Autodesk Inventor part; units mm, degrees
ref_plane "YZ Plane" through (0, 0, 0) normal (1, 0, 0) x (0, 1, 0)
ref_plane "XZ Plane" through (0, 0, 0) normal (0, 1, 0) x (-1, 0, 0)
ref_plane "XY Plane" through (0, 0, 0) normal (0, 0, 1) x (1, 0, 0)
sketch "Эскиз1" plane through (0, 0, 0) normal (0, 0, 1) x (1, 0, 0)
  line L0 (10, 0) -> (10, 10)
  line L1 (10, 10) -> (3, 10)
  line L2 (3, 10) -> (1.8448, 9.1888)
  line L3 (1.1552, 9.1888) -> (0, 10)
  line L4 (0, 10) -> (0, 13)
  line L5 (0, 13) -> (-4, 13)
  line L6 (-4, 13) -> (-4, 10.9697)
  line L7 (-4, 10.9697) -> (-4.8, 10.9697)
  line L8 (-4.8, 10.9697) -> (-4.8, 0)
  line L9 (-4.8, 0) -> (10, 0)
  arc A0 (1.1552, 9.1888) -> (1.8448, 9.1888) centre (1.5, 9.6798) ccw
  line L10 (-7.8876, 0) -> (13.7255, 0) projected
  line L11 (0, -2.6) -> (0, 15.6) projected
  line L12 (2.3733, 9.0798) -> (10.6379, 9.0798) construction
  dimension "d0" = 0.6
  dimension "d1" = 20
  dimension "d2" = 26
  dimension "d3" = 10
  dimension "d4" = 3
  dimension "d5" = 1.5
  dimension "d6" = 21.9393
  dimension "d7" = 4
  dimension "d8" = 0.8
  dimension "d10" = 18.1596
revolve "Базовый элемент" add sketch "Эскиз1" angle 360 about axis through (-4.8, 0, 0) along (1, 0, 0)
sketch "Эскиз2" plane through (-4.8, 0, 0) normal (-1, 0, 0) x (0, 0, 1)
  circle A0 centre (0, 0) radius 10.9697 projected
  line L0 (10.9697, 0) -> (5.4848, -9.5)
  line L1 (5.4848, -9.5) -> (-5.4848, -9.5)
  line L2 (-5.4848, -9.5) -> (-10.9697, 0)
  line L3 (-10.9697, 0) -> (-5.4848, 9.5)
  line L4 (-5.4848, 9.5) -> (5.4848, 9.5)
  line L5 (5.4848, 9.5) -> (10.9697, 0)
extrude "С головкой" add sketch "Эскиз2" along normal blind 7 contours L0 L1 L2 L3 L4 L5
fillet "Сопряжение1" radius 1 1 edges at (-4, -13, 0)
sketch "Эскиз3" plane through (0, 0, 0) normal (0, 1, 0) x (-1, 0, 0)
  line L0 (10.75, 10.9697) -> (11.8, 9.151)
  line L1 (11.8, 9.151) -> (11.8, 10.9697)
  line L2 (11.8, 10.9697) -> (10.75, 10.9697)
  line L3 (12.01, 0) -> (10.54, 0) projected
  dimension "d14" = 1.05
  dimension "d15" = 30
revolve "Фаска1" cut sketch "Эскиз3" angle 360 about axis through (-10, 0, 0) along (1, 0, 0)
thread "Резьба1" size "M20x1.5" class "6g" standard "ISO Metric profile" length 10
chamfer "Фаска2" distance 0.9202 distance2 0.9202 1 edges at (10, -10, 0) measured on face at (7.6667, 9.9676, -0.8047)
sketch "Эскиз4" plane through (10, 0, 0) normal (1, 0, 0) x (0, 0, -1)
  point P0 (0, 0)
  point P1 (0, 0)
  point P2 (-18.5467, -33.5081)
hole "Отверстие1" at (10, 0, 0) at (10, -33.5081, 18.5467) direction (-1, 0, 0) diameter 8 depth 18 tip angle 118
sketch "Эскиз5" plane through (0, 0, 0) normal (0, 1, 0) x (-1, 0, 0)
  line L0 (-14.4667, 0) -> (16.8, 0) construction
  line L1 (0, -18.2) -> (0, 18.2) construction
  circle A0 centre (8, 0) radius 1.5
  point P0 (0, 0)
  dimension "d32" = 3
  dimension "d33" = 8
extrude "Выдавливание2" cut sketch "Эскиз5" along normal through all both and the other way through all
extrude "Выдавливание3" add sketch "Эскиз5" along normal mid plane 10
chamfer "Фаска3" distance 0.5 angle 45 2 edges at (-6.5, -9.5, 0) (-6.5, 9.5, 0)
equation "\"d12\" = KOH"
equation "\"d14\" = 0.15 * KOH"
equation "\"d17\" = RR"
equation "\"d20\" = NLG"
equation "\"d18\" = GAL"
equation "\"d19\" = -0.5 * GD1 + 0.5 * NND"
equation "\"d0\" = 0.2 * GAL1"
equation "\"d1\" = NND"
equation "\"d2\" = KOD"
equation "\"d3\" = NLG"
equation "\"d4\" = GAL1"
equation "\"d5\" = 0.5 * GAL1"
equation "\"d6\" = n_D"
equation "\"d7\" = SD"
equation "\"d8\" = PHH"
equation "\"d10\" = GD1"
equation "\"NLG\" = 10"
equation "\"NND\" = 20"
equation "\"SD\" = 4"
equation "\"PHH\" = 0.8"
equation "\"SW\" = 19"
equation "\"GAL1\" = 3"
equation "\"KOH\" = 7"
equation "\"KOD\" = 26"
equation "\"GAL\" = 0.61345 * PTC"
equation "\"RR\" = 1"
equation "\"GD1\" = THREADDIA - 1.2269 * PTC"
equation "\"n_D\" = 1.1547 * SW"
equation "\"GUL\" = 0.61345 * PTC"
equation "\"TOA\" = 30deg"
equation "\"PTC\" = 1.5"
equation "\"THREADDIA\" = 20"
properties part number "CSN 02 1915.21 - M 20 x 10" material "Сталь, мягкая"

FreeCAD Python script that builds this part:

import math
import FreeCAD as App
import Part
import Sketcher
Q = App.Units.Quantity


def edges_at(feature, points):
    """Names of the edges that pass closest to the given points."""
    edges = feature.Shape.Edges
    near = lambda p: min(range(len(edges)), key=lambda i: edges[i].distToShape(Part.Vertex(*p))[0])
    return sorted({f"Edge{near(p) + 1}" for p in points})

doc = App.newDocument("Part")
body = doc.addObject("PartDesign::Body", "Body")

# Sketch on XY plane
sketch1 = body.newObject("Sketcher::SketchObject", "Sketch")
sketch1.AttachmentSupport = (doc.getObject("XY_Plane"), [""])
sketch1.MapMode = "FlatFace"
sketch1.addGeometry([
    Part.LineSegment(App.Vector(10, 0, 0), App.Vector(10, 10, 0)),  # 0
    Part.LineSegment(App.Vector(10, 10, 0), App.Vector(3, 10, 0)),  # 1
    Part.LineSegment(App.Vector(3, 10, 0), App.Vector(1.8448, 9.1888, 0)),  # 2
    Part.ArcOfCircle(Part.Circle(App.Vector(1.5, 9.6798, 0), App.Vector(0, 0, 1), 0.599973), math.radians(-125.078078), math.radians(-54.921922)),  # 3
    Part.LineSegment(App.Vector(1.1552, 9.1888, 0), App.Vector(0, 10, 0)),  # 4
    Part.LineSegment(App.Vector(0, 10, 0), App.Vector(0, 13, 0)),  # 5
    Part.LineSegment(App.Vector(0, 13, 0), App.Vector(-4, 13, 0)),  # 6
    Part.LineSegment(App.Vector(-4, 13, 0), App.Vector(-4, 10.9697, 0)),  # 7
    Part.LineSegment(App.Vector(-4, 10.9697, 0), App.Vector(-4.8, 10.9697, 0)),  # 8
    Part.LineSegment(App.Vector(-4.8, 10.9697, 0), App.Vector(-4.8, 0, 0)),  # 9
    Part.LineSegment(App.Vector(-4.8, 0, 0), App.Vector(10, 0, 0)),  # 10
], False)
sketch1.addConstraint([
    Sketcher.Constraint("Coincident", 0, 2, 1, 1),
    Sketcher.Constraint("Coincident", 1, 2, 2, 1),
    Sketcher.Constraint("Tangent", 2, 2, 3, 2),
    Sketcher.Constraint("Tangent", 3, 1, 4, 1),
    Sketcher.Constraint("Coincident", 4, 2, 5, 1),
    Sketcher.Constraint("Coincident", 5, 2, 6, 1),
    Sketcher.Constraint("Coincident", 6, 2, 7, 1),
    Sketcher.Constraint("Coincident", 7, 2, 8, 1),
    Sketcher.Constraint("Coincident", 8, 2, 9, 1),
    Sketcher.Constraint("Coincident", 9, 2, 10, 1),
    Sketcher.Constraint("Coincident", 10, 2, 0, 1),
    Sketcher.Constraint("Vertical", 0),
    Sketcher.Constraint("Horizontal", 1),
    Sketcher.Constraint("Vertical", 5),
    Sketcher.Constraint("Horizontal", 6),
    Sketcher.Constraint("Vertical", 7),
    Sketcher.Constraint("Horizontal", 8),
    Sketcher.Constraint("Vertical", 9),
    Sketcher.Constraint("Horizontal", 10),
    Sketcher.Constraint("PointOnObject", 4, 2, -2),
    Sketcher.Constraint("PointOnObject", 9, 2, -1),
    Sketcher.Constraint("Horizontal", 2, 2, 3, 1),
    Sketcher.Constraint("Horizontal", 1, 2, 4, 2),
    Sketcher.Constraint("Radius", 3, 0.6),
    Sketcher.Constraint("DistanceX", 6, 2, 6, 1, 4.0),
    Sketcher.Constraint("DistanceY", 0, 1, 0, 2, 10.0),
    Sketcher.Constraint("DistanceY", 5, 1, 5, 2, 3.0),
    Sketcher.Constraint("DistanceX", 8, 2, 8, 1, 0.8),
    Sketcher.Constraint("DistanceX", -1, 1, 0, 2, 10.0),
    Sketcher.Constraint("DistanceX", -1, 1, 1, 2, 3.0),
    Sketcher.Constraint("DistanceY", 3, 3, 7, 2, 1.29),
    Sketcher.Constraint("DistanceY", 7, 2, 7, 1, 2.0303),
])
revolution = body.newObject("PartDesign::Revolution", "Revolution")
revolution.Profile = sketch1
revolution.ReferenceAxis = (sketch1, ["H_Axis"])
revolution.Angle = 360

# Sketch on YZ plane
sketch2 = body.newObject("Sketcher::SketchObject", "Sketch001")
sketch2.AttachmentSupport = (doc.getObject("YZ_Plane"), [""])
sketch2.MapMode = "FlatFace"
sketch2.AttachmentOffset = App.Placement(App.Vector(0, 0, -4.8), App.Rotation())
sketch2.addGeometry([
    Part.LineSegment(App.Vector(-9.5, 5.4848, 0), App.Vector(0, 10.9697, 0)),  # 0
    Part.LineSegment(App.Vector(0, 10.9697, 0), App.Vector(9.5, 5.4848, 0)),  # 1
    Part.LineSegment(App.Vector(9.5, 5.4848, 0), App.Vector(9.5, -5.4848, 0)),  # 2
    Part.LineSegment(App.Vector(9.5, -5.4848, 0), App.Vector(0, -10.9697, 0)),  # 3
    Part.LineSegment(App.Vector(0, -10.9697, 0), App.Vector(-9.5, -5.4848, 0)),  # 4
    Part.LineSegment(App.Vector(-9.5, -5.4848, 0), App.Vector(-9.5, 5.4848, 0)),  # 5
], False)
sketch2.addConstraint([
    Sketcher.Constraint("Coincident", 0, 2, 1, 1),
    Sketcher.Constraint("Coincident", 1, 2, 2, 1),
    Sketcher.Constraint("Coincident", 2, 2, 3, 1),
    Sketcher.Constraint("Coincident", 3, 2, 4, 1),
    Sketcher.Constraint("Coincident", 4, 2, 5, 1),
    Sketcher.Constraint("Coincident", 5, 2, 0, 1),
    Sketcher.Constraint("Vertical", 2),
    Sketcher.Constraint("Vertical", 5),
    Sketcher.Constraint("Symmetric", 0, 2, 3, 2, -1, 1),
    Sketcher.Constraint("Symmetric", 1, 2, 4, 2, -1, 1),
    Sketcher.Constraint("PointOnObject", 0, 2, -2),
    Sketcher.Constraint("Parallel", 0, 3),
    Sketcher.Constraint("Horizontal", 2, 2, 4, 2),
    Sketcher.Constraint("Angle", 0, Q("30.0003 deg")),
    Sketcher.Constraint("DistanceX", 4, 2, 2, 2, 19.0),
    Sketcher.Constraint("DistanceY", 2, 2, 2, 1, 10.9696),
])
pad1 = body.newObject("PartDesign::Pad", "Pad")
pad1.Profile = sketch2
pad1.Length = 7
pad1.Reversed = True
doc.recompute()

fillet = body.newObject("PartDesign::Fillet", "Fillet")
fillet.Base = (pad1, edges_at(pad1, [(-4, -13, 0)]))
fillet.Radius = 1

# Sketch on XZ plane
sketch3 = body.newObject("Sketcher::SketchObject", "Sketch002")
sketch3.AttachmentSupport = (doc.getObject("XZ_Plane"), [""])
sketch3.MapMode = "FlatFace"
sketch3.addGeometry([
    Part.LineSegment(App.Vector(-11.8, 10.9697, 0), App.Vector(-10.75, 10.9697, 0)),
    Part.LineSegment(App.Vector(-10.75, 10.9697, 0), App.Vector(-11.8, 9.151, 0)),
    Part.LineSegment(App.Vector(-11.8, 9.151, 0), App.Vector(-11.8, 10.9697, 0)),
], False)
sketch3.addConstraint([
    Sketcher.Constraint("Coincident", 0, 2, 1, 1),
    Sketcher.Constraint("Coincident", 1, 2, 2, 1),
    Sketcher.Constraint("Coincident", 2, 2, 0, 1),
    Sketcher.Constraint("Horizontal", 0),
    Sketcher.Constraint("Vertical", 2),
    Sketcher.Constraint("DistanceX", 0, 1, 0, 2, 1.05),
    Sketcher.Constraint("Angle", 1, Q("-119.9994 deg")),
    Sketcher.Constraint("DistanceX", 1, 2, -1, 1, 11.8),
    Sketcher.Constraint("DistanceY", -1, 1, 1, 2, 9.151),
])
groove = body.newObject("PartDesign::Groove", "Groove")
groove.Profile = sketch3
groove.ReferenceAxis = (sketch3, ["H_Axis"])
groove.Angle = 360
doc.recompute()

chamfer = body.newObject("PartDesign::Chamfer", "Chamfer")
chamfer.Base = (groove, edges_at(groove, [(10, -10, 0)]))
chamfer.ChamferType = "Two distances"
chamfer.Size = 0.9202
chamfer.Size2 = 0.9202

# Sketch on YZ plane
sketch4 = body.newObject("Sketcher::SketchObject", "Sketch003")
sketch4.AttachmentSupport = (doc.getObject("YZ_Plane"), [""])
sketch4.MapMode = "FlatFace"
sketch4.AttachmentOffset = App.Placement(App.Vector(0, 0, 10), App.Rotation())
sketch4.addGeometry([
    Part.Circle(App.Vector(0, 0, 0), App.Vector(0, 0, 1), 4),
    Part.Circle(App.Vector(-33.5081, 18.5467, 0), App.Vector(0, 0, 1), 4),
], False)
sketch4.addConstraint([
    Sketcher.Constraint("Coincident", 0, 3, -1, 1),
    Sketcher.Constraint("Equal", 0, 1),
    Sketcher.Constraint("Diameter", 0, 8.0),
    Sketcher.Constraint("DistanceX", 1, 3, -1, 1, 33.508),
    Sketcher.Constraint("DistanceY", -1, 1, 1, 3, 18.5467),
])
doc.recompute()
hole = body.newObject("PartDesign::Hole", "Hole")
hole.Profile = sketch4
hole.ThreadType = "None"
hole.Diameter = 8
hole.DepthType = "Dimension"
hole.Depth = 18
hole.DrillPoint = "Angled"
hole.DrillPointAngle = 118

# Sketch on XZ plane
sketch5 = body.newObject("Sketcher::SketchObject", "Sketch004")
sketch5.AttachmentSupport = (doc.getObject("XZ_Plane"), [""])
sketch5.MapMode = "FlatFace"
sketch5.addGeometry(Part.Circle(App.Vector(-8, 0, 0), App.Vector(0, 0, 1), 1.5), False)
sketch5.addConstraint([
    Sketcher.Constraint("PointOnObject", 0, 3, -1),
    Sketcher.Constraint("Diameter", 0, 3.0),
    Sketcher.Constraint("DistanceX", 0, 3, -1, 1, 8.0),
])
pocket1 = body.newObject("PartDesign::Pocket", "Pocket")
pocket1.Profile = sketch5
pocket1.Type = "ThroughAll"
pocket1.Midplane = True

# Sketch on XZ plane
sketch6 = body.newObject("Sketcher::SketchObject", "Sketch005")
sketch6.AttachmentSupport = (doc.getObject("XZ_Plane"), [""])
sketch6.MapMode = "FlatFace"
sketch6.addGeometry(Part.Circle(App.Vector(-8, 0, 0), App.Vector(0, 0, 1), 1.5), False)
sketch6.addConstraint([
    Sketcher.Constraint("PointOnObject", 0, 3, -1),
    Sketcher.Constraint("Diameter", 0, 3.0),
    Sketcher.Constraint("DistanceX", 0, 3, -1, 1, 8.0),
])
pad2 = body.newObject("PartDesign::Pad", "Pad001")
pad2.Profile = sketch6
pad2.Length = 10
pad2.Midplane = True
doc.recompute()

chamfer2 = body.newObject("PartDesign::Chamfer", "Chamfer001")
chamfer2.Base = (pad2, edges_at(pad2, [(-6.5, -9.5, 0), (-6.5, 9.5, 0)]))
chamfer2.Size = 0.5

doc.recompute()
